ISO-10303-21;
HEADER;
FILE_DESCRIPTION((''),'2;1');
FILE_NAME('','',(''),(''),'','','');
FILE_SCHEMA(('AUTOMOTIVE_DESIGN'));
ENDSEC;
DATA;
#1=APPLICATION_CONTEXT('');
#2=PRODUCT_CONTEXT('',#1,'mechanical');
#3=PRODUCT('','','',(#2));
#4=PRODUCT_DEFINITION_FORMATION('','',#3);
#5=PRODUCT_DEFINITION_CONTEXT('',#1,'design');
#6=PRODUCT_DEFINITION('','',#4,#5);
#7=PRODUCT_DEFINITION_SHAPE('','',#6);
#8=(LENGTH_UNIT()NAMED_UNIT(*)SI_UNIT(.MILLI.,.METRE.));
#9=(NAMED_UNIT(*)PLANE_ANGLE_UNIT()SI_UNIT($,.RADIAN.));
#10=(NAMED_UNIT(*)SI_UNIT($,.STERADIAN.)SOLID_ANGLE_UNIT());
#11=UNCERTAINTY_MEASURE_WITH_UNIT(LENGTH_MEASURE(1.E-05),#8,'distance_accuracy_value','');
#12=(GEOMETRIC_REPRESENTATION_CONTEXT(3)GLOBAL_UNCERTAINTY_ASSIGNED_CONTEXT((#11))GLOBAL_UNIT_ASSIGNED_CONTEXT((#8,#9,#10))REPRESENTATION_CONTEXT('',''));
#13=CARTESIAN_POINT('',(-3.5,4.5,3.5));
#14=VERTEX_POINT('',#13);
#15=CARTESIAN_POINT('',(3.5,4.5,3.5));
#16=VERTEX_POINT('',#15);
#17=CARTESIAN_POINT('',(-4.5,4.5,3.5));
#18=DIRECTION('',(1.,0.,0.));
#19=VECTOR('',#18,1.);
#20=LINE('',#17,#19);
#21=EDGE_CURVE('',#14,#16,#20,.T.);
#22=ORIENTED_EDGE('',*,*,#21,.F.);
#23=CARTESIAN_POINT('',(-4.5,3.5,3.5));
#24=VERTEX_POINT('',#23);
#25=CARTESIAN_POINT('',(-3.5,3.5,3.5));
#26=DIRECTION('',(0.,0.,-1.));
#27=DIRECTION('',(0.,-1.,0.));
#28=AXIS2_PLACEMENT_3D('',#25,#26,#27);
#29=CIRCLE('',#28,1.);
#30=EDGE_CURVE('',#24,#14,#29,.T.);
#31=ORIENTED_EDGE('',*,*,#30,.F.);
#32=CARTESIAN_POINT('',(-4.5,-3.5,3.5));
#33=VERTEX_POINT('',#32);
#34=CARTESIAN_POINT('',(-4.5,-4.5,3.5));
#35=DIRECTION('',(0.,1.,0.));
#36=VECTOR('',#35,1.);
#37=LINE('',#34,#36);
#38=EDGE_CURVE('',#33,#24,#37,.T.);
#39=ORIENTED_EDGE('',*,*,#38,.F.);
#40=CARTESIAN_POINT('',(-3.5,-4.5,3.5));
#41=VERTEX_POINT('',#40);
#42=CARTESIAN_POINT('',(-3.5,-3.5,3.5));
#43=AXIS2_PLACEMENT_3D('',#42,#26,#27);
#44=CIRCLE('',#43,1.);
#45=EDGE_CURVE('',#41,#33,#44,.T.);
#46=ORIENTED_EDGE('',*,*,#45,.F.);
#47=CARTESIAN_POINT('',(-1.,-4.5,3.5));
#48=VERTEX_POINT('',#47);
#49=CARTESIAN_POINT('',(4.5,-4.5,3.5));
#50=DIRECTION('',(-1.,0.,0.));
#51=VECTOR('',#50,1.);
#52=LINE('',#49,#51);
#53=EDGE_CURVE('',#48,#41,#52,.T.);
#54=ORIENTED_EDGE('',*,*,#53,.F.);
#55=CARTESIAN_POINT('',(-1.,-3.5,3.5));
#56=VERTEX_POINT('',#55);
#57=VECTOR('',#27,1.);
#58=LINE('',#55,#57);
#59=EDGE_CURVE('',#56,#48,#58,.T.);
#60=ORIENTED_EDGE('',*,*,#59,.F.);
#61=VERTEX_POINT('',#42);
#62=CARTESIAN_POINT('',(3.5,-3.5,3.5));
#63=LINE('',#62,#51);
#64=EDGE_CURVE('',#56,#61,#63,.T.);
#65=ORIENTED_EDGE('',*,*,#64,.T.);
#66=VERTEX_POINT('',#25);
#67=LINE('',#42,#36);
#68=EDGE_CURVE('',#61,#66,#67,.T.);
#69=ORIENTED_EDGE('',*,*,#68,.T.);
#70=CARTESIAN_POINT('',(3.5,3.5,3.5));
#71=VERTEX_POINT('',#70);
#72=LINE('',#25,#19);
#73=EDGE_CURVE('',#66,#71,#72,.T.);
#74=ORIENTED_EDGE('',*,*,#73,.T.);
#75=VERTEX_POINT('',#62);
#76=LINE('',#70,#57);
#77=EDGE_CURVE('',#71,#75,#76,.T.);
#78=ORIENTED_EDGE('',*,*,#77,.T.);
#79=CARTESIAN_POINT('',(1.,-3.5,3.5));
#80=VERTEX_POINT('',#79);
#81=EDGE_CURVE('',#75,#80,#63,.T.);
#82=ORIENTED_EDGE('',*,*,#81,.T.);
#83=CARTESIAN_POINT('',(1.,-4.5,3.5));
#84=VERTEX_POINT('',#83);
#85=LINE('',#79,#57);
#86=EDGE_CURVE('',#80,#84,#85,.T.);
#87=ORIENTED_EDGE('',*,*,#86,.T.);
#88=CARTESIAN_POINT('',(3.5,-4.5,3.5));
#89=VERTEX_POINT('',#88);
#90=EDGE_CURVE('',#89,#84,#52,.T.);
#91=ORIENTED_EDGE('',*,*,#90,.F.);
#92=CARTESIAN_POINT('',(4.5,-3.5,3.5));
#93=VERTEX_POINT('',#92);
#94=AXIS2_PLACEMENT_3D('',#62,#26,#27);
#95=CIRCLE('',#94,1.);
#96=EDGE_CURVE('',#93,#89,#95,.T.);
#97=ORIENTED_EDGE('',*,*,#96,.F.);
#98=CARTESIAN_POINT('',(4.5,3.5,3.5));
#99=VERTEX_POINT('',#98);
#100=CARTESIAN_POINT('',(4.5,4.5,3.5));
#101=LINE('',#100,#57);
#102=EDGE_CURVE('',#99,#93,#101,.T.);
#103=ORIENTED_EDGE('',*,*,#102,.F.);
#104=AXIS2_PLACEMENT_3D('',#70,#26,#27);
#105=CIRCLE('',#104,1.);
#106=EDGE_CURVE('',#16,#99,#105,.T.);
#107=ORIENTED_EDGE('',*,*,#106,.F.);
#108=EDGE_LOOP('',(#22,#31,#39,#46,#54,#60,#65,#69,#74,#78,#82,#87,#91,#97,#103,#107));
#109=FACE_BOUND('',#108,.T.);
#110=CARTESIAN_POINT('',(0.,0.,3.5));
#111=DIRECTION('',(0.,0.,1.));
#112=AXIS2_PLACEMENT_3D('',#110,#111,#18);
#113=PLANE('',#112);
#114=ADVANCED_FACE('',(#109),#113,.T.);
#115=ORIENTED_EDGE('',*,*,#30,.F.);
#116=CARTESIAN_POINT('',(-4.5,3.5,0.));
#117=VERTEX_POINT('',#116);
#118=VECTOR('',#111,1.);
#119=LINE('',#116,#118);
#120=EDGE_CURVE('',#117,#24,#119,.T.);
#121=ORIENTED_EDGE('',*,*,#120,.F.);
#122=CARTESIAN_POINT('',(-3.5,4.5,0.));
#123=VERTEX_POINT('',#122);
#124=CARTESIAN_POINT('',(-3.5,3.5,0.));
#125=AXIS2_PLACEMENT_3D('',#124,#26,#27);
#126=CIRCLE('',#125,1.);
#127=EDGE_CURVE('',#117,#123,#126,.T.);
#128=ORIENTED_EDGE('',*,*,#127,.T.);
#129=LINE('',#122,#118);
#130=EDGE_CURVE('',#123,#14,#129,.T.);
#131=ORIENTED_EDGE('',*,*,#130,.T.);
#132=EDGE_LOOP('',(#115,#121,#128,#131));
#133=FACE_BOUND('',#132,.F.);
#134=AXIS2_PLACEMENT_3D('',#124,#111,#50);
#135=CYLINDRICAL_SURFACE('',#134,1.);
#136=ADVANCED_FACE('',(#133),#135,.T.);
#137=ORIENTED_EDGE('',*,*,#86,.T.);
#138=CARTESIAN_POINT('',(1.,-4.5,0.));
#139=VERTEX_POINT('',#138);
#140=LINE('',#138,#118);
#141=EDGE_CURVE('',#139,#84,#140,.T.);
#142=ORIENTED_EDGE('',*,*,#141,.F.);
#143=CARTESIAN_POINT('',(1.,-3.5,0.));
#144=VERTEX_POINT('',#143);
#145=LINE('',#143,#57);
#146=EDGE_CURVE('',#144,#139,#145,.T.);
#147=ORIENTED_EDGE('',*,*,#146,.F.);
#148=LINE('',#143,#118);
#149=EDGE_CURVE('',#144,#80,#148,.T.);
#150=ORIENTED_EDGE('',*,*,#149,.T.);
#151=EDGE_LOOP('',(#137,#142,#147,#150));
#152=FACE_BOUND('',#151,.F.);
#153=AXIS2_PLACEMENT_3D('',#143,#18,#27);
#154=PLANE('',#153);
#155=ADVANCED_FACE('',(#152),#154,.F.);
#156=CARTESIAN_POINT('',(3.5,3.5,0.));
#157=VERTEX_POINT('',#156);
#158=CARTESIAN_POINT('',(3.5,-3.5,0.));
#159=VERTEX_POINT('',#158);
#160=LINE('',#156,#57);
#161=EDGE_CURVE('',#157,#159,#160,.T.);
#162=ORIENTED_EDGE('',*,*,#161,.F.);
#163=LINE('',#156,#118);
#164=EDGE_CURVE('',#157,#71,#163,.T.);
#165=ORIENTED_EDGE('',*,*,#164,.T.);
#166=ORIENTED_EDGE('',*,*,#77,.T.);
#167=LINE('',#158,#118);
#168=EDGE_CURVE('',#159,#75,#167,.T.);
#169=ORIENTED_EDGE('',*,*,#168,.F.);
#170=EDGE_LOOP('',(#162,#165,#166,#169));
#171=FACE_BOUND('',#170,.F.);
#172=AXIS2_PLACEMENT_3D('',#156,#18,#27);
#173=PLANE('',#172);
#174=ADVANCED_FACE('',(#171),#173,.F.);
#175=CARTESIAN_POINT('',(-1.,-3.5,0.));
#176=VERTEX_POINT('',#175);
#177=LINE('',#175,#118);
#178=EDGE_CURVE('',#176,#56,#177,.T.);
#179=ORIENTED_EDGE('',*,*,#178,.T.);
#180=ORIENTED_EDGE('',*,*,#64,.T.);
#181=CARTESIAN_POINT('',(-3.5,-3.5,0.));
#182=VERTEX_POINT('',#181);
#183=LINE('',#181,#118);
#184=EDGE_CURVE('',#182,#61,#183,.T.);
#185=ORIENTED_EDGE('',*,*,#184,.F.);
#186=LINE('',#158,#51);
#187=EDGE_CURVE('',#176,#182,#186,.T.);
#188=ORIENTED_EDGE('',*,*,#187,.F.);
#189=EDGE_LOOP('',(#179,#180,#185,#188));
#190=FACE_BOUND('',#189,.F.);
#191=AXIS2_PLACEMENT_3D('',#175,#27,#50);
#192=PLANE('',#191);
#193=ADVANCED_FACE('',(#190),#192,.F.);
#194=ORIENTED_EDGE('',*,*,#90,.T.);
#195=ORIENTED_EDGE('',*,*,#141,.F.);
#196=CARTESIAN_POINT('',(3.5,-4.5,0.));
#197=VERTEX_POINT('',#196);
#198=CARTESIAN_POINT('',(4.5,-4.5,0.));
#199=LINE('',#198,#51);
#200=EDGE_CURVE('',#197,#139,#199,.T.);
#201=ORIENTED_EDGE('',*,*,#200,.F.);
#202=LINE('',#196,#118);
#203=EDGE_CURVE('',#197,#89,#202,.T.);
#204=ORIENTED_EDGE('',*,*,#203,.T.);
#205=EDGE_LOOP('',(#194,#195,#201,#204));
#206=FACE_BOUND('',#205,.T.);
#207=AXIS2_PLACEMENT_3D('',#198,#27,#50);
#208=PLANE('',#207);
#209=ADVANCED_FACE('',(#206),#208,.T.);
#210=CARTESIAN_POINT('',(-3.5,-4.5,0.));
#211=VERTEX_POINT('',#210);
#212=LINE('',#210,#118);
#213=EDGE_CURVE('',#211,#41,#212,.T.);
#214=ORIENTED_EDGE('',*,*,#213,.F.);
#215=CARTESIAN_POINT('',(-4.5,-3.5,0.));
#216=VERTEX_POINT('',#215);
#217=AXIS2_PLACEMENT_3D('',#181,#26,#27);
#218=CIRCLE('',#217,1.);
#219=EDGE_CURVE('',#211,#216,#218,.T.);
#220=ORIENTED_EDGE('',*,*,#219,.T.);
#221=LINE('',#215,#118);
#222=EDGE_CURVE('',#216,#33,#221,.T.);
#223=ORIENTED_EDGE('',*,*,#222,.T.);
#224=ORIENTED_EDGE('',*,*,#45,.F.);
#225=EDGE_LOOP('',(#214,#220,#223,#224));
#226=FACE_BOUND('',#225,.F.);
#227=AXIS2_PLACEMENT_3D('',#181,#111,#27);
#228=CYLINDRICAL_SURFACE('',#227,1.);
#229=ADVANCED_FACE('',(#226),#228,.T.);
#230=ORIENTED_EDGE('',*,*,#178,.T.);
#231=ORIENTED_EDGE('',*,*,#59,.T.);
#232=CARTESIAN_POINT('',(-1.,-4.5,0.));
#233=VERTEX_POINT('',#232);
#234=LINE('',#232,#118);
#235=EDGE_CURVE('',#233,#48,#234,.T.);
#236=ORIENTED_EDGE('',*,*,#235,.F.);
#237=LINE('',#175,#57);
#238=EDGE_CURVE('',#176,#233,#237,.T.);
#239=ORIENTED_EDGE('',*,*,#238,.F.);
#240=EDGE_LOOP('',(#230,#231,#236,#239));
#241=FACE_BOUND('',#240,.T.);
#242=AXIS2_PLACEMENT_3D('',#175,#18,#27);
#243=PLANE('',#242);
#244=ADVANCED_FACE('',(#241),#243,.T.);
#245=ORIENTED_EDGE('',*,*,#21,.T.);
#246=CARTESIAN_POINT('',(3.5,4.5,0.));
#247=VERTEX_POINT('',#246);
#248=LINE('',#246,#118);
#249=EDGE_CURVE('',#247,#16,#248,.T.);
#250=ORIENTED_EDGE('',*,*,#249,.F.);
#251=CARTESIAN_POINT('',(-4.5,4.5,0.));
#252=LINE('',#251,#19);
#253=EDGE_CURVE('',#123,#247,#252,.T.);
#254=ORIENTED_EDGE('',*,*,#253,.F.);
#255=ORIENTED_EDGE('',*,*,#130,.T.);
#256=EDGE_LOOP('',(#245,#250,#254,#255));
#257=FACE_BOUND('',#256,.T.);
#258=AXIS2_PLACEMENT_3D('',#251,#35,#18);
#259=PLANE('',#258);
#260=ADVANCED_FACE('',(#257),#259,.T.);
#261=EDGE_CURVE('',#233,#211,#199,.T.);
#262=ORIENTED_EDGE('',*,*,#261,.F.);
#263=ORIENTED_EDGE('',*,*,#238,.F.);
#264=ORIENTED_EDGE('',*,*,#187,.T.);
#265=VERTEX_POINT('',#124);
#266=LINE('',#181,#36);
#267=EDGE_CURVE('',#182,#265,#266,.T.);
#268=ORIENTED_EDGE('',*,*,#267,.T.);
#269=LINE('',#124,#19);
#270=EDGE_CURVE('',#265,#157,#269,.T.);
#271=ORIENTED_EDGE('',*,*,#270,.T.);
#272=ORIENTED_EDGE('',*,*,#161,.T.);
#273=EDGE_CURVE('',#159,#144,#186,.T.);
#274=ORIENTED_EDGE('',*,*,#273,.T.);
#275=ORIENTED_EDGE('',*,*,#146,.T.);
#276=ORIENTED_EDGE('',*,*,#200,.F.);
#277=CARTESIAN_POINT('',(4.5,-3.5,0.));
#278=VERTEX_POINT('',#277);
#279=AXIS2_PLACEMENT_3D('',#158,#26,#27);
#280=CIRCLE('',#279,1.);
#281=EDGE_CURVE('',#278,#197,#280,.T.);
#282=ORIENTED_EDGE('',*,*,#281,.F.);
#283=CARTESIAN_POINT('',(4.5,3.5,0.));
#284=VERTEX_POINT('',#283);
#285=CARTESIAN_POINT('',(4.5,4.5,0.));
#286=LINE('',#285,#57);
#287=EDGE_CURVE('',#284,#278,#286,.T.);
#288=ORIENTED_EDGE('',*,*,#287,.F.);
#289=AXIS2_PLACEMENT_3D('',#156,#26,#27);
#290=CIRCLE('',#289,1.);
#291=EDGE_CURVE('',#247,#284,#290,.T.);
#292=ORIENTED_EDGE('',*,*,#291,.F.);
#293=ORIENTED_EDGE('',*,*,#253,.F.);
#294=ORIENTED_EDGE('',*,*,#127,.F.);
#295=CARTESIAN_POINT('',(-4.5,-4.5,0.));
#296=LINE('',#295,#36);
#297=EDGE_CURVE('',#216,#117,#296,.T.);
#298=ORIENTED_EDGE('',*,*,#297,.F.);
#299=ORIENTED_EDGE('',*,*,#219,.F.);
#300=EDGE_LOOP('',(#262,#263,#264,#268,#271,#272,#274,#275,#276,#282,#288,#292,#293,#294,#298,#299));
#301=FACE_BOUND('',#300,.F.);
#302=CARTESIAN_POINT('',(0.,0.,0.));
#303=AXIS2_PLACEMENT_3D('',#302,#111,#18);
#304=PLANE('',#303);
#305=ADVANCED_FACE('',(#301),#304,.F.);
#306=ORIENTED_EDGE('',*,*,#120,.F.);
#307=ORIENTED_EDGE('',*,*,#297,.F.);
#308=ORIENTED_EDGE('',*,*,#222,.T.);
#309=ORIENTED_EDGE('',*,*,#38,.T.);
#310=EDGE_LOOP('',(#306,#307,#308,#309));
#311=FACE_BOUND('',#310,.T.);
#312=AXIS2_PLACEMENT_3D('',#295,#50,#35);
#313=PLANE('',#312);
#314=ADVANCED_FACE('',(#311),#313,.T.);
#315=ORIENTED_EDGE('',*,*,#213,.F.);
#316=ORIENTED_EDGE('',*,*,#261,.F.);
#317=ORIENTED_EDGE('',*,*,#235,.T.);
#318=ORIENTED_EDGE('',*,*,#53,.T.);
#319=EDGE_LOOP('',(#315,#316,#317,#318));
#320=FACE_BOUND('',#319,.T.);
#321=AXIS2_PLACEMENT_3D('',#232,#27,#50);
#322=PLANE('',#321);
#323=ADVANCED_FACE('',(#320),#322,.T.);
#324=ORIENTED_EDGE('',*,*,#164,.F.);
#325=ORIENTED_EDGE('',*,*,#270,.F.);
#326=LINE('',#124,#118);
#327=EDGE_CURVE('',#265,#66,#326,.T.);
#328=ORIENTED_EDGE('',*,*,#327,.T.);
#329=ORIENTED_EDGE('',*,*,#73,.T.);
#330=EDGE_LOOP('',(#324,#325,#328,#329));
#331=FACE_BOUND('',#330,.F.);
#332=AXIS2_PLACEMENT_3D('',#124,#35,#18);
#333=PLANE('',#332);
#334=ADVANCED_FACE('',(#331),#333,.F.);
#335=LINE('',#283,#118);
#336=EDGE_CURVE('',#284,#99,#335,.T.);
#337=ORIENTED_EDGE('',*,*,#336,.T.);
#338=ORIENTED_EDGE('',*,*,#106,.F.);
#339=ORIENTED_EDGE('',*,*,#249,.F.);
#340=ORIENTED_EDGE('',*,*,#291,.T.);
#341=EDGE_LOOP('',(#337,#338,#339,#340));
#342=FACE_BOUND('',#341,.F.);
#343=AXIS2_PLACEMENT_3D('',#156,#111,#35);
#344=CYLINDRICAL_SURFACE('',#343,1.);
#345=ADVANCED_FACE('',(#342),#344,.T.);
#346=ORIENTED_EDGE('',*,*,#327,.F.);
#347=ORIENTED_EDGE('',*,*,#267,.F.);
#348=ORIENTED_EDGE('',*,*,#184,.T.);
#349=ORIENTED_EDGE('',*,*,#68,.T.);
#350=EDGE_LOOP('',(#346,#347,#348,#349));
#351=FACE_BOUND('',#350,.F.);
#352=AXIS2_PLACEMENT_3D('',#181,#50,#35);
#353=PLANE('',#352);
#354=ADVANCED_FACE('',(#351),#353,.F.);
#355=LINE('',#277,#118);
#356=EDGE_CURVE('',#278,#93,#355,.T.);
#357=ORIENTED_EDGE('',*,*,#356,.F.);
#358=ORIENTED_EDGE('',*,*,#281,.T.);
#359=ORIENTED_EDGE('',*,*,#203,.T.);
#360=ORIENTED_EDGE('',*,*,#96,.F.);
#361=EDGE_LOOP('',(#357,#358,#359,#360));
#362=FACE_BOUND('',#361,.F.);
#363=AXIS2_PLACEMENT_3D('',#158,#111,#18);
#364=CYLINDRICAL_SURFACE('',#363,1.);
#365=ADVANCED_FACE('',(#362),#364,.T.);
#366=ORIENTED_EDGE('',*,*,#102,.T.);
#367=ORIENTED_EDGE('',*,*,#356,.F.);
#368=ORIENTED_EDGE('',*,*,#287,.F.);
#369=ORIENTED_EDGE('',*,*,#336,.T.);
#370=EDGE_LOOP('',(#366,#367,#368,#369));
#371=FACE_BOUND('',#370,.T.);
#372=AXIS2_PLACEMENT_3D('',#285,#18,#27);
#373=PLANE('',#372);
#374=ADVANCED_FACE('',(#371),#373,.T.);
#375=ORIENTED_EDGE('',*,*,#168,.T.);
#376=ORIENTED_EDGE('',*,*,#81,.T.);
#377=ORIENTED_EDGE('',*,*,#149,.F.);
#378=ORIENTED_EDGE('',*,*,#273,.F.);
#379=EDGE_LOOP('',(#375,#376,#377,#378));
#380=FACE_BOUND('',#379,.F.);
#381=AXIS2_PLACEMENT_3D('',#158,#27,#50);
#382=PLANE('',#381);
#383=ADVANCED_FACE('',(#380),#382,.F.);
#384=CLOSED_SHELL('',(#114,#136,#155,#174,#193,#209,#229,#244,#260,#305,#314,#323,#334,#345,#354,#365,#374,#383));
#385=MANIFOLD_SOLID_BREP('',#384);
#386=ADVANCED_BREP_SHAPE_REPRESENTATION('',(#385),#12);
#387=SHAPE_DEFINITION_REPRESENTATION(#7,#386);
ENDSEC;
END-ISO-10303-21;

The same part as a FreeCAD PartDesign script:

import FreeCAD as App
import Part
import Sketcher
Q = App.Units.Quantity


def edges_at(feature, points):
    """Names of the edges that pass closest to the given points."""
    edges = feature.Shape.Edges
    near = lambda p: min(range(len(edges)), key=lambda i: edges[i].distToShape(Part.Vertex(*p))[0])
    return sorted({f"Edge{near(p) + 1}" for p in points})


def add_polygon(sketch, points):
    """Adds a closed chain of lines whose ends are joined by coincident constraints."""
    first, n = sketch.GeometryCount, len(points)
    for a, b in zip(points, points[1:] + points[:1]):
        sketch.addGeometry(Part.LineSegment(App.Vector(*a, 0), App.Vector(*b, 0)), False)
    for i in range(n):
        sketch.addConstraint(Sketcher.Constraint("Coincident", first + i, 2, first + (i + 1) % n, 1))

doc = App.newDocument("Part")
body = doc.addObject("PartDesign::Body", "Body")

sketch1 = body.newObject("Sketcher::SketchObject", "Sketch")
sketch1.AttachmentSupport = (doc.getObject("XY_Plane"), [""])
sketch1.MapMode = "FlatFace"
add_polygon(sketch1, [(-3.5, -3.5), (-3.5, 3.5), (3.5, 3.5), (3.5, -3.5), (1, -3.5), (1, -4.5), (4.5, -4.5), (4.5, 4.5), (-4.5, 4.5), (-4.5, -4.5), (-1, -4.5), (-1, -3.5)])
sketch1.addConstraint([
    Sketcher.Constraint("Vertical", 0),
    Sketcher.Constraint("Horizontal", 1),
    Sketcher.Constraint("Vertical", 2),
    Sketcher.Constraint("Horizontal", 3),
    Sketcher.Constraint("Vertical", 4),
    Sketcher.Constraint("Horizontal", 5),
    Sketcher.Constraint("Vertical", 6),
    Sketcher.Constraint("Horizontal", 7),
    Sketcher.Constraint("Vertical", 8),
    Sketcher.Constraint("Horizontal", 9),
    Sketcher.Constraint("Vertical", 10),
    Sketcher.Constraint("Horizontal", 11),
    Sketcher.Constraint("Symmetric", 0, 2, 2, 2, -1, 1),
    Sketcher.Constraint("Symmetric", 5, 2, 7, 2, -1, 1),
    Sketcher.Constraint("Symmetric", 4, 2, 9, 2, -2),
    Sketcher.Constraint("Horizontal", 3, 2, 10, 2),
    Sketcher.Constraint("Equal", 1, 0),
    Sketcher.Constraint("Equal", 7, 6),
    Sketcher.Constraint("DistanceX", 1, 1, 1, 2, Q("7 mm")),
    Sketcher.Constraint("DistanceY", 4, 2, 4, 1, Q("1 mm")),
    Sketcher.Constraint("DistanceX", -1, 1, 3, 2, Q("1 mm")),
])
pad1 = body.newObject("PartDesign::Pad", "Pad")
pad1.Profile = sketch1
pad1.Length = 3.5
doc.recompute()

fillet = body.newObject("PartDesign::Fillet", "Fillet")
fillet.Base = (pad1, edges_at(pad1, [
    (4.5, 4.5, 1.75),
    (-4.5, 4.5, 1.75),
    (-4.5, -4.5, 1.75),
    (4.5, -4.5, 1.75),
]))
fillet.Radius = 1

doc.recompute()
